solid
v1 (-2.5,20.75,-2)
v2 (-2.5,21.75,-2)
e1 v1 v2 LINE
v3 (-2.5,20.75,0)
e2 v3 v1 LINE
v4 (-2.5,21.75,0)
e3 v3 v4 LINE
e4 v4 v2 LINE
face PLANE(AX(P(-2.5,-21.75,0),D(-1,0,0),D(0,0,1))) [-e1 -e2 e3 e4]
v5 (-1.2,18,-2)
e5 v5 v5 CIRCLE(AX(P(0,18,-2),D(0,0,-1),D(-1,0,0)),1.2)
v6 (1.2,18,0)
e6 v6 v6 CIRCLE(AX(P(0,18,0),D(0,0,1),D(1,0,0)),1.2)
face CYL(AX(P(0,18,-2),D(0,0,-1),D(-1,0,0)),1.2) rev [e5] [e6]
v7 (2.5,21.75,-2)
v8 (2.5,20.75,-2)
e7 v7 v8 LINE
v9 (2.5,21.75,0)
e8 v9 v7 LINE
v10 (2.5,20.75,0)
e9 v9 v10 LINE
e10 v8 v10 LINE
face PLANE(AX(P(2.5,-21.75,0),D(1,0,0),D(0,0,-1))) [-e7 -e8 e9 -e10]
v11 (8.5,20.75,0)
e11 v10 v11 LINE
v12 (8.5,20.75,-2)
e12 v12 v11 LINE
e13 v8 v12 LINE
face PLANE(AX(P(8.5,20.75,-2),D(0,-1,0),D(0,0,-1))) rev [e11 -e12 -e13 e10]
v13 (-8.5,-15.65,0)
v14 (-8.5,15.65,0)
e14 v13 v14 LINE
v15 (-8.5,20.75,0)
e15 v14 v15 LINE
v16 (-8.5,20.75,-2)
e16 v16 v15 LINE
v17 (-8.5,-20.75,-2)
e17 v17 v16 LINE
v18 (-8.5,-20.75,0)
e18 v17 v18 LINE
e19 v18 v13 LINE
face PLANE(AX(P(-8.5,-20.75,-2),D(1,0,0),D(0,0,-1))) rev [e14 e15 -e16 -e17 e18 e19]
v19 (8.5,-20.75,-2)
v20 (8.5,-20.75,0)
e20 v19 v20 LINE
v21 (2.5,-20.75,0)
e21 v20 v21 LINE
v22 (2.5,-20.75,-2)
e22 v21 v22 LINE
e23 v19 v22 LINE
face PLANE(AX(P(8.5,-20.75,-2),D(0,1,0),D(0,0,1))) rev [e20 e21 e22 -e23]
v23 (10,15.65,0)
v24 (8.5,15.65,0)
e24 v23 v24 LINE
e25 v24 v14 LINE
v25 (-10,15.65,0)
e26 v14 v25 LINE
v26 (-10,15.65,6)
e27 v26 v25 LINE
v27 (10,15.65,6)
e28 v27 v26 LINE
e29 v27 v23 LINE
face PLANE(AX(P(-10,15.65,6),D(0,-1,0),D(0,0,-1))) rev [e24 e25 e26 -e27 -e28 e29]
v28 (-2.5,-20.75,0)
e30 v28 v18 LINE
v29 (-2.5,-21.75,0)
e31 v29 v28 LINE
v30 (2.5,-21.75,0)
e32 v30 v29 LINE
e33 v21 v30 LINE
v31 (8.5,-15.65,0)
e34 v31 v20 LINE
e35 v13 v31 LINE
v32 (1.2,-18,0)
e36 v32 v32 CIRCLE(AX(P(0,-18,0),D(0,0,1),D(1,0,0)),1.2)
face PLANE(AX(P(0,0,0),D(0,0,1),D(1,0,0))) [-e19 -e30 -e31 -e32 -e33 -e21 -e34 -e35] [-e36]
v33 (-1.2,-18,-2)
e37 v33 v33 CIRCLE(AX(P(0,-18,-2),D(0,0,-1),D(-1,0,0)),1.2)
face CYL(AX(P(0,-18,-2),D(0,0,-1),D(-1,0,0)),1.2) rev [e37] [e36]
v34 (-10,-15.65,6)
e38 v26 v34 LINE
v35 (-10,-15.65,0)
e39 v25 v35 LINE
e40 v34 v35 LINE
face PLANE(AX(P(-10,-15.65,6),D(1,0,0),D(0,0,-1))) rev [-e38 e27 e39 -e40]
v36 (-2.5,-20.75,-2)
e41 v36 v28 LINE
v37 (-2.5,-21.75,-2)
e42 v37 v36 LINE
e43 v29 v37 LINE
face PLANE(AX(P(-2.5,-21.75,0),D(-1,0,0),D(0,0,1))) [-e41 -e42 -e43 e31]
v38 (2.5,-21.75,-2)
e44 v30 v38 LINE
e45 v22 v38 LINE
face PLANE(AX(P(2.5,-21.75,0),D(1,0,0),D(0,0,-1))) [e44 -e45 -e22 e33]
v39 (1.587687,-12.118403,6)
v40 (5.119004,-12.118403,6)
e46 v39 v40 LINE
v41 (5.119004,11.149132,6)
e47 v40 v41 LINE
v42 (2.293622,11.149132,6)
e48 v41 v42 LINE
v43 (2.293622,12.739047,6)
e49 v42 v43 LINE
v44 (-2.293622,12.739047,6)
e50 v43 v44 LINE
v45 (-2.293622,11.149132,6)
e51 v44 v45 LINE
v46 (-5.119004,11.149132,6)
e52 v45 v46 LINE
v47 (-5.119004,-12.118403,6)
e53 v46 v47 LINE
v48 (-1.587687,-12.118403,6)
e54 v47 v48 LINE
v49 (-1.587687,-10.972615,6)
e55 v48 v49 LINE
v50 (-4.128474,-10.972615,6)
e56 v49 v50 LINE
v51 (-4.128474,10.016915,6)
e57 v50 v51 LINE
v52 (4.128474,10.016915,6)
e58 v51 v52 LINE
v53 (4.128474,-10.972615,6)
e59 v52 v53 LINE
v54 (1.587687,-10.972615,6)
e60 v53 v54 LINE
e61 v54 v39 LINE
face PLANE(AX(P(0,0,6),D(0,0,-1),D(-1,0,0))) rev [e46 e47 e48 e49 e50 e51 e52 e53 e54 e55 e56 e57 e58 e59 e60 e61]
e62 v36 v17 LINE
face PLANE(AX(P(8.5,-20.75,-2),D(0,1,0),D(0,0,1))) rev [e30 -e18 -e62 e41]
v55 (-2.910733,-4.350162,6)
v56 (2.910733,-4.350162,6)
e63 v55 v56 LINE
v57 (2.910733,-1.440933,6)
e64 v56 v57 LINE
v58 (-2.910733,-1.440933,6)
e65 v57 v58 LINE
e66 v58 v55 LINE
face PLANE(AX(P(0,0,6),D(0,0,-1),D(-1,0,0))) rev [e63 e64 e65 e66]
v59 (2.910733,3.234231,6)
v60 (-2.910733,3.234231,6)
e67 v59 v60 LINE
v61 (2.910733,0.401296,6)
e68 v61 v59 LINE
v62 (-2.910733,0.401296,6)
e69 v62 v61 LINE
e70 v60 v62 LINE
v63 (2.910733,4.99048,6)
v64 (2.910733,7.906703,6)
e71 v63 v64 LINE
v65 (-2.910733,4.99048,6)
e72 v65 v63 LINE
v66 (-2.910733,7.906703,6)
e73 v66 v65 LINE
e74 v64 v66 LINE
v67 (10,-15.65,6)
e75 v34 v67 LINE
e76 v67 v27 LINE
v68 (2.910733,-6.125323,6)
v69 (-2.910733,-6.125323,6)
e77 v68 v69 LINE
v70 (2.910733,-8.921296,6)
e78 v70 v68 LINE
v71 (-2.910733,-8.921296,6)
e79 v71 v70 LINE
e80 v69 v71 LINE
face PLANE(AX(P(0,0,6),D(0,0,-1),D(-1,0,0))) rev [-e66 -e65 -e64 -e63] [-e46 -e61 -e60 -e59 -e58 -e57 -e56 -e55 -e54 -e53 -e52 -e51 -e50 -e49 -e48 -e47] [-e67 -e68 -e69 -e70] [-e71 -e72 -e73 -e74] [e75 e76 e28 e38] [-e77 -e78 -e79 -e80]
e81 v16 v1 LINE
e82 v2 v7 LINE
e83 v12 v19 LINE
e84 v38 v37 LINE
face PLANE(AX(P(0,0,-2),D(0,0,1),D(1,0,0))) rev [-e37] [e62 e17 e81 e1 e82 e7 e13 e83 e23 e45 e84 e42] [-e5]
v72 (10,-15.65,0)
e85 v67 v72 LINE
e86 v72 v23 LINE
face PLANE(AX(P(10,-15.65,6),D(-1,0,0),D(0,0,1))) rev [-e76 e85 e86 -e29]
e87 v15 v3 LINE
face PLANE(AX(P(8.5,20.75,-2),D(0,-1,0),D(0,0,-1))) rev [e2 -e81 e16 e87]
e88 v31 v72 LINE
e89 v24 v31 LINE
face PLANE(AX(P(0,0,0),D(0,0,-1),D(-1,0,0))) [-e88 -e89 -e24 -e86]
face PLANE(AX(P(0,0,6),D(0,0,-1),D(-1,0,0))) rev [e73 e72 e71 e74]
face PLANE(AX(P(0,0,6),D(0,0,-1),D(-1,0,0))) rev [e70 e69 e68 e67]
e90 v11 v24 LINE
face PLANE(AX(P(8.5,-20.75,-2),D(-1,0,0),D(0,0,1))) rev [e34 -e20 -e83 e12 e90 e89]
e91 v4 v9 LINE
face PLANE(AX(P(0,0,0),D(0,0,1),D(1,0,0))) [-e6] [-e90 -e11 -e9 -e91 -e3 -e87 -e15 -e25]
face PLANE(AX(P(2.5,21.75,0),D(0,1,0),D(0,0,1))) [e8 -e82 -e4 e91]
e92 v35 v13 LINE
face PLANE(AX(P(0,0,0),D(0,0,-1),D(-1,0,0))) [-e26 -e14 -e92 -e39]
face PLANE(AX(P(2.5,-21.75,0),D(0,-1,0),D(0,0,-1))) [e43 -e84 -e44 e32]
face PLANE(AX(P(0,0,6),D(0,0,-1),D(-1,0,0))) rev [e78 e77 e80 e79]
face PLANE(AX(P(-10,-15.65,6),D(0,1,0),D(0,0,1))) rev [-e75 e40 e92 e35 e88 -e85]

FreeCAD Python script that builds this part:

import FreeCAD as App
import Part
import Sketcher
from FreeCAD import Vector
Q = App.Units.Quantity


def add_polygon(sketch, points):
    """Adds a closed chain of lines whose ends are joined by coincident constraints."""
    first, n = sketch.GeometryCount, len(points)
    for a, b in zip(points, points[1:] + points[:1]):
        sketch.addGeometry(Part.LineSegment(App.Vector(*a, 0), App.Vector(*b, 0)), False)
    for i in range(n):
        sketch.addConstraint(Sketcher.Constraint("Coincident", first + i, 2, first + (i + 1) % n, 1))

doc = App.newDocument("Part")
params = doc.addObject("Spreadsheet::Sheet", "Params")
for row, (alias, value) in enumerate([
    ("sketch1_width", "20 mm"),
    ("sketch1_height", "31.3 mm"),
    ("pad1_length", "6 mm"),
    ("sketch2_width", "17 mm"),
    ("sketch2_height", "41.5 mm"),
    ("pad2_length", "2 mm"),
    ("sketch3_width", "5 mm"),
    ("sketch3_height", "43.5 mm"),
    ("pad3_length", "2 mm"),
    ("sketch4_diameter", "2.4 mm"),
    ("hole_diameter", "2.4 mm"),
    ("hole_depth", "2 mm"),
], start=1):
    params.set(f"A{row}", alias)
    params.set(f"B{row}", "=" + value)
    params.setAlias(f"B{row}", alias)

body = doc.addObject("PartDesign::Body", "Body")

# Sketch on XY plane
sketch1 = body.newObject("Sketcher::SketchObject", "Sketch")
sketch1.AttachmentSupport = (doc.getObject("XY_Plane"), [""])
sketch1.MapMode = "FlatFace"
add_polygon(sketch1, [(-10, 15.65), (-10, -15.65), (10, -15.65), (10, 15.65)])  # lines 0-3
sketch1.addConstraint(Sketcher.Constraint("Vertical", 0))
sketch1.addConstraint(Sketcher.Constraint("Horizontal", 1))
sketch1.addConstraint(Sketcher.Constraint("Vertical", 2))
sketch1.addConstraint(Sketcher.Constraint("Horizontal", 3))
sketch1.addConstraint(Sketcher.Constraint("Symmetric", 0, 2, 2, 2, -1, 1))
sketch1.addConstraint(Sketcher.Constraint("DistanceX", 1, 1, 1, 2, Q("20 mm")))
sketch1.addConstraint(Sketcher.Constraint("DistanceY", 0, 2, 0, 1, Q("31.3 mm")))
sketch1.setExpression("Constraints[9]", "Params.sketch1_width")
sketch1.setExpression("Constraints[10]", "Params.sketch1_height")
pad1 = body.newObject("PartDesign::Pad", "Pad")
pad1.Profile = sketch1
pad1.setExpression("Length", "Params.pad1_length")

# Sketch on XY plane
sketch2 = body.newObject("Sketcher::SketchObject", "Sketch001")
sketch2.AttachmentSupport = (doc.getObject("XY_Plane"), [""])
sketch2.MapMode = "FlatFace"
add_polygon(sketch2, [(8.5, 20.75), (8.5, -20.75), (-8.5, -20.75), (-8.5, 20.75)])  # lines 0-3
sketch2.addConstraint(Sketcher.Constraint("Vertical", 0))
sketch2.addConstraint(Sketcher.Constraint("Horizontal", 1))
sketch2.addConstraint(Sketcher.Constraint("Vertical", 2))
sketch2.addConstraint(Sketcher.Constraint("Horizontal", 3))
sketch2.addConstraint(Sketcher.Constraint("Symmetric", 0, 2, 2, 2, -1, 1))
sketch2.addConstraint(Sketcher.Constraint("DistanceX", 1, 2, 1, 1, Q("17 mm")))
sketch2.addConstraint(Sketcher.Constraint("DistanceY", 0, 2, 0, 1, Q("41.5 mm")))
sketch2.setExpression("Constraints[9]", "Params.sketch2_width")
sketch2.setExpression("Constraints[10]", "Params.sketch2_height")
pad2 = body.newObject("PartDesign::Pad", "Pad001")
pad2.Profile = sketch2
pad2.setExpression("Length", "Params.pad2_length")
pad2.Reversed = True

# Sketch on XY plane
sketch3 = body.newObject("Sketcher::SketchObject", "Sketch002")
sketch3.AttachmentSupport = (doc.getObject("XY_Plane"), [""])
sketch3.MapMode = "FlatFace"
sketch3.AttachmentOffset = App.Placement(Vector(0, 0, -2), App.Rotation())
add_polygon(sketch3, [(2.5, 21.75), (2.5, -21.75), (-2.5, -21.75), (-2.5, 21.75)])  # lines 0-3
sketch3.addConstraint(Sketcher.Constraint("Vertical", 0))
sketch3.addConstraint(Sketcher.Constraint("Horizontal", 1))
sketch3.addConstraint(Sketcher.Constraint("Vertical", 2))
sketch3.addConstraint(Sketcher.Constraint("Horizontal", 3))
sketch3.addConstraint(Sketcher.Constraint("Symmetric", 0, 2, 2, 2, -1, 1))
sketch3.addConstraint(Sketcher.Constraint("DistanceX", 1, 2, 1, 1, Q("5 mm")))
sketch3.addConstraint(Sketcher.Constraint("DistanceY", 0, 2, 0, 1, Q("43.5 mm")))
sketch3.setExpression("Constraints[9]", "Params.sketch3_width")
sketch3.setExpression("Constraints[10]", "Params.sketch3_height")
pad3 = body.newObject("PartDesign::Pad", "Pad002")
pad3.Profile = sketch3
pad3.setExpression("Length", "Params.pad3_length")

# Sketch on XY plane
sketch4 = body.newObject("Sketcher::SketchObject", "Sketch003")
sketch4.AttachmentSupport = (doc.getObject("XY_Plane"), [""])
sketch4.MapMode = "FlatFace"
sketch4.AttachmentOffset = App.Placement(Vector(0, 0, -2), App.Rotation())
sketch4.addGeometry(Part.Circle(Vector(0, 18, 0), Vector(0, 0, 1), 1.2), False)
sketch4.addGeometry(Part.Circle(Vector(0, -18, 0), Vector(0, 0, 1), 1.2), False)
sketch4.addConstraint(Sketcher.Constraint("Equal", 0, 1))
sketch4.addConstraint(Sketcher.Constraint("Symmetric", 0, 3, 1, 3, -1, 1))
sketch4.addConstraint(Sketcher.Constraint("PointOnObject", 0, 3, -2))
sketch4.addConstraint(Sketcher.Constraint("Diameter", 0, Q("2.4 mm")))
sketch4.addConstraint(Sketcher.Constraint("DistanceY", -1, 1, 0, 3, Q("18 mm")))
sketch4.setExpression("Constraints[3]", "Params.sketch4_diameter")
doc.recompute()
hole = body.newObject("PartDesign::Hole", "Hole")
hole.Profile = sketch4
hole.ThreadType = "None"
hole.setExpression("Diameter", "Params.hole_diameter")
hole.DepthType = "Dimension"
hole.setExpression("Depth", "Params.hole_depth")
hole.DrillPoint = "Flat"
hole.Reversed = True

doc.recompute()
